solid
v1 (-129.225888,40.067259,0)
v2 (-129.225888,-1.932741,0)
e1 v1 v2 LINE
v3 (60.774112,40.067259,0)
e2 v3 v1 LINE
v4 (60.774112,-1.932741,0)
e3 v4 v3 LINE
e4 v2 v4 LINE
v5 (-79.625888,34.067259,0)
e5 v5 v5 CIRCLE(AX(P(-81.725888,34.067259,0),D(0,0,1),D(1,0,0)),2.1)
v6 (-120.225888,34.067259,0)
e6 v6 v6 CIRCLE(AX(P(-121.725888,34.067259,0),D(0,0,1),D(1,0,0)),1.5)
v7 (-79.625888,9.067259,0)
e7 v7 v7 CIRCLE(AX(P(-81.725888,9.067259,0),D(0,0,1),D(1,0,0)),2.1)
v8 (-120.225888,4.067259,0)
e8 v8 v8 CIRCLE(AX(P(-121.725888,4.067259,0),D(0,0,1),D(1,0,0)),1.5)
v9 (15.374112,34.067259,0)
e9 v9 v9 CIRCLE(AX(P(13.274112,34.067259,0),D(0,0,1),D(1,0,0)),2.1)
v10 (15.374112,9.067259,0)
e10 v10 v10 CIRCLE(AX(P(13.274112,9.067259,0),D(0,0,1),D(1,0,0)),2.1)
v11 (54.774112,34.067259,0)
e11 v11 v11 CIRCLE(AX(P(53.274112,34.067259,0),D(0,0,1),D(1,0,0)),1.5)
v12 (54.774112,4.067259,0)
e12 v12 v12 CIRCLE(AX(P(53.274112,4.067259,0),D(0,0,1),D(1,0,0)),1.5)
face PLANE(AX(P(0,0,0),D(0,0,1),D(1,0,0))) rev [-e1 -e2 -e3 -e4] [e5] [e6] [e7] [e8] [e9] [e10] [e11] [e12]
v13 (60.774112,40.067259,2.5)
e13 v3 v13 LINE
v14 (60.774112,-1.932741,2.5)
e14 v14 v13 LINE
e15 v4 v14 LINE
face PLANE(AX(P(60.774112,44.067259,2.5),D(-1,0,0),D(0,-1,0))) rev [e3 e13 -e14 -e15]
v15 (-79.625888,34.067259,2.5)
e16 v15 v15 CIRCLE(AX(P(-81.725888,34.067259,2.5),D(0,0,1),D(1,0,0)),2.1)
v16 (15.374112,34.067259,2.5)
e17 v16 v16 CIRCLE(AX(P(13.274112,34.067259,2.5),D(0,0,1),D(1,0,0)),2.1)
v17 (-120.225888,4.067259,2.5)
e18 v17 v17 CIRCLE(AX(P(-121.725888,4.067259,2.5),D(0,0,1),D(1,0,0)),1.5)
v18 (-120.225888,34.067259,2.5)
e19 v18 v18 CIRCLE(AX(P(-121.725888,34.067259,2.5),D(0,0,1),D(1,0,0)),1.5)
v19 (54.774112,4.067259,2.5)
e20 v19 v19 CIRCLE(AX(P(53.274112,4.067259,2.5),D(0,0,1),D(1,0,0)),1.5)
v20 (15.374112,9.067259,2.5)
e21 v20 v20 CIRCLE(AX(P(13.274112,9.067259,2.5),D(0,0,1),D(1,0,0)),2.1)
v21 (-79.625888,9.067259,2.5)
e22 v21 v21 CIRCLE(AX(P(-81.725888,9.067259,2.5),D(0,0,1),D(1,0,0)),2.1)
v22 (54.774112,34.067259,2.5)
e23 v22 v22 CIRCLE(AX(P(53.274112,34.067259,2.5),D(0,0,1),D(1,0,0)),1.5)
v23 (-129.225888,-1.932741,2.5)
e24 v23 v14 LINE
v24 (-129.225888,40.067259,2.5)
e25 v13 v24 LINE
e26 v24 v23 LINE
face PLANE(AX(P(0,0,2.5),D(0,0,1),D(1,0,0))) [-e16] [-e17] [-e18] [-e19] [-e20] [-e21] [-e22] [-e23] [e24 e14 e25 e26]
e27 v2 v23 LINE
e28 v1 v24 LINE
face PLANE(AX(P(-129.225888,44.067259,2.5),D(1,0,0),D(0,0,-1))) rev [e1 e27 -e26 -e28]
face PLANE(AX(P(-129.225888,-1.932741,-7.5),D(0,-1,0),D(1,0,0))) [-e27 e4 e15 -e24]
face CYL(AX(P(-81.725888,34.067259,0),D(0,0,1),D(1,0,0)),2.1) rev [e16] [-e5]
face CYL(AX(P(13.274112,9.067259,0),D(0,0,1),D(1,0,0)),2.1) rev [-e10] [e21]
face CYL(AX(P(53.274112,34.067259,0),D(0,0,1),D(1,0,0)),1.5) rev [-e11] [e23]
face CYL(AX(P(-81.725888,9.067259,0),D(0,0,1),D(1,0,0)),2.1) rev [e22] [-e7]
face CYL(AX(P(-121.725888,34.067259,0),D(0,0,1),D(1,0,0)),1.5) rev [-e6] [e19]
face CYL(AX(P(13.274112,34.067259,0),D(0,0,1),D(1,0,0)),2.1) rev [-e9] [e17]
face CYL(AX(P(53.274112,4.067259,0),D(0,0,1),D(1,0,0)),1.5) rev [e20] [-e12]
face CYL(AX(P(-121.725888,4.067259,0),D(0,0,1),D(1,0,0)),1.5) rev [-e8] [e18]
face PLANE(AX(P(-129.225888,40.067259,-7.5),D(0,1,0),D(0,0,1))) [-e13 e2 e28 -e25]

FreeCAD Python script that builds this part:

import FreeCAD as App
import Part
import Sketcher
from FreeCAD import Vector

doc = App.newDocument("Part")
params = doc.addObject("Spreadsheet::Sheet", "Params")
for row, (alias, value) in enumerate([
    ("sketch1_width", "190 mm"),
    ("sketch1_height", "50 mm"),
    ("pad1_length", "2.5 mm"),
    ("sketch2_diameter", "3 mm"),
    ("sketch3_diameter", "4.2 mm"),
    ("sketch4_width", "190 mm"),
    ("sketch4_height", "42 mm"),
    ("pocket3_length", "10 mm"),
], start=1):
    params.set(f"A{row}", alias)
    params.set(f"B{row}", "=" + value)
    params.setAlias(f"B{row}", alias)

body = doc.addObject("PartDesign::Body", "Body")

# Sketch on XY plane
sketch1 = doc.addObject("Sketcher::SketchObject", "Sketch")
body.addObject(sketch1)
sketch1.AttachmentSupport = (doc.XY_Plane, [""])
sketch1.MapMode = "FlatFace"
sketch1.addGeometry(Part.LineSegment(Vector(-129.225888, 44.067259, 0), Vector(-129.225888, -5.932741, 0)), False)
sketch1.addGeometry(Part.LineSegment(Vector(-129.225888, -5.932741, 0), Vector(60.774112, -5.932741, 0)), False)
sketch1.addGeometry(Part.LineSegment(Vector(60.774112, -5.932741, 0), Vector(60.774112, 44.067259, 0)), False)
sketch1.addGeometry(Part.LineSegment(Vector(60.774112, 44.067259, 0), Vector(-129.225888, 44.067259, 0)), False)
sketch1.addConstraint(Sketcher.Constraint("Coincident", 0, 2, 1, 1))
sketch1.addConstraint(Sketcher.Constraint("Coincident", 1, 2, 2, 1))
sketch1.addConstraint(Sketcher.Constraint("Coincident", 2, 2, 3, 1))
sketch1.addConstraint(Sketcher.Constraint("Coincident", 3, 2, 0, 1))
sketch1.addConstraint(Sketcher.Constraint("Vertical", 0))
sketch1.addConstraint(Sketcher.Constraint("Horizontal", 1))
sketch1.addConstraint(Sketcher.Constraint("Vertical", 2))
sketch1.addConstraint(Sketcher.Constraint("Horizontal", 3))
sketch1.addConstraint(Sketcher.Constraint("DistanceX", 1, 1, 1, 2, 190.0))
sketch1.addConstraint(Sketcher.Constraint("DistanceY", 0, 2, 0, 1, 50.0))
sketch1.addConstraint(Sketcher.Constraint("DistanceX", 0, 2, -1, 1, 129.225888))
sketch1.addConstraint(Sketcher.Constraint("DistanceY", 0, 2, -1, 1, 5.932741))
sketch1.setExpression("Constraints[8]", "Params.sketch1_width")
sketch1.setExpression("Constraints[9]", "Params.sketch1_height")
pad1 = doc.addObject("PartDesign::Pad", "Pad")
body.addObject(pad1)
pad1.Profile = sketch1
pad1.setExpression("Length", "Params.pad1_length")

# Sketch on XY plane
sketch2 = doc.addObject("Sketcher::SketchObject", "Sketch001")
body.addObject(sketch2)
sketch2.AttachmentSupport = (doc.XY_Plane, [""])
sketch2.MapMode = "FlatFace"
sketch2.AttachmentOffset = App.Placement(Vector(0, 0, 2.5), App.Rotation())
sketch2.addGeometry(Part.Circle(Vector(-121.725888, 34.067259, 0), Vector(0, 0, 1), 1.5), False)
sketch2.addGeometry(Part.Circle(Vector(-121.725888, 4.067259, 0), Vector(0, 0, 1), 1.5), False)
sketch2.addGeometry(Part.Circle(Vector(53.274112, 34.067259, 0), Vector(0, 0, 1), 1.5), False)
sketch2.addGeometry(Part.Circle(Vector(53.274112, 4.067259, 0), Vector(0, 0, 1), 1.5), False)
sketch2.addConstraint(Sketcher.Constraint("Equal", 0, 1))
sketch2.addConstraint(Sketcher.Constraint("Equal", 1, 2))
sketch2.addConstraint(Sketcher.Constraint("Equal", 2, 3))
sketch2.addConstraint(Sketcher.Constraint("Horizontal", 0, 3, 2, 3))
sketch2.addConstraint(Sketcher.Constraint("Horizontal", 1, 3, 3, 3))
sketch2.addConstraint(Sketcher.Constraint("Vertical", 0, 3, 1, 3))
sketch2.addConstraint(Sketcher.Constraint("Vertical", 2, 3, 3, 3))
sketch2.addConstraint(Sketcher.Constraint("Diameter", 0, 3.0))
sketch2.addConstraint(Sketcher.Constraint("DistanceY", 1, 3, 0, 3, 30.0))
sketch2.addConstraint(Sketcher.Constraint("DistanceX", 0, 3, 2, 3, 175.0))
sketch2.addConstraint(Sketcher.Constraint("DistanceX", 0, 3, -1, 1, 121.725888))
sketch2.addConstraint(Sketcher.Constraint("DistanceY", -1, 1, 0, 3, 34.067259))
sketch2.setExpression("Constraints[7]", "Params.sketch2_diameter")
pocket1 = doc.addObject("PartDesign::Pocket", "Pocket")
body.addObject(pocket1)
pocket1.Profile = sketch2
pocket1.Type = "ThroughAll"

# Sketch on XY plane
sketch3 = doc.addObject("Sketcher::SketchObject", "Sketch002")
body.addObject(sketch3)
sketch3.AttachmentSupport = (doc.XY_Plane, [""])
sketch3.MapMode = "FlatFace"
sketch3.AttachmentOffset = App.Placement(Vector(0, 0, 2.5), App.Rotation())
sketch3.addGeometry(Part.Circle(Vector(-81.725888, 34.067259, 0), Vector(0, 0, 1), 2.1), False)
sketch3.addGeometry(Part.Circle(Vector(13.274112, 34.067259, 0), Vector(0, 0, 1), 2.1), False)
sketch3.addGeometry(Part.Circle(Vector(13.274112, 9.067259, 0), Vector(0, 0, 1), 2.1), False)
sketch3.addGeometry(Part.Circle(Vector(-81.725888, 9.067259, 0), Vector(0, 0, 1), 2.1), False)
sketch3.addConstraint(Sketcher.Constraint("Equal", 0, 1))
sketch3.addConstraint(Sketcher.Constraint("Equal", 1, 2))
sketch3.addConstraint(Sketcher.Constraint("Equal", 2, 3))
sketch3.addConstraint(Sketcher.Constraint("Horizontal", 0, 3, 1, 3))
sketch3.addConstraint(Sketcher.Constraint("Horizontal", 2, 3, 3, 3))
sketch3.addConstraint(Sketcher.Constraint("Vertical", 1, 3, 2, 3))
sketch3.addConstraint(Sketcher.Constraint("Vertical", 0, 3, 3, 3))
sketch3.addConstraint(Sketcher.Constraint("Diameter", 0, 4.2))
sketch3.addConstraint(Sketcher.Constraint("DistanceX", 0, 3, 1, 3, 95.0))
sketch3.addConstraint(Sketcher.Constraint("DistanceY", 2, 3, 1, 3, 25.0))
sketch3.addConstraint(Sketcher.Constraint("DistanceX", 0, 3, -1, 1, 81.725888))
sketch3.addConstraint(Sketcher.Constraint("DistanceY", -1, 1, 0, 3, 34.067259))
sketch3.setExpression("Constraints[7]", "Params.sketch3_diameter")
pocket2 = doc.addObject("PartDesign::Pocket", "Pocket001")
body.addObject(pocket2)
pocket2.Profile = sketch3
pocket2.Type = "ThroughAll"

# Sketch on XY plane
sketch4 = doc.addObject("Sketcher::SketchObject", "Sketch003")
body.addObject(sketch4)
sketch4.AttachmentSupport = (doc.XY_Plane, [""])
sketch4.MapMode = "FlatFace"
sketch4.AttachmentOffset = App.Placement(Vector(0, 0, 2.5), App.Rotation())
sketch4.addGeometry(Part.LineSegment(Vector(-132.726005, 50.201577, 0), Vector(-132.726005, -10.594591, 0)), False)
sketch4.addGeometry(Part.LineSegment(Vector(-132.726005, -10.594591, 0), Vector(67.229043, -10.594591, 0)), False)
sketch4.addGeometry(Part.LineSegment(Vector(67.229043, -10.594591, 0), Vector(67.229043, 50.201577, 0)), False)
sketch4.addGeometry(Part.LineSegment(Vector(67.229043, 50.201577, 0), Vector(-132.726005, 50.201577, 0)), False)
sketch4.addGeometry(Part.LineSegment(Vector(60.774112, -1.932741, 0), Vector(-129.225888, -1.932741, 0)), False)
sketch4.addGeometry(Part.LineSegment(Vector(-129.225888, -1.932741, 0), Vector(-129.225888, 40.067259, 0)), False)
sketch4.addGeometry(Part.LineSegment(Vector(-129.225888, 40.067259, 0), Vector(60.774112, 40.067259, 0)), False)
sketch4.addGeometry(Part.LineSegment(Vector(60.774112, 40.067259, 0), Vector(60.774112, -1.932741, 0)), False)
sketch4.addConstraint(Sketcher.Constraint("Coincident", 0, 2, 1, 1))
sketch4.addConstraint(Sketcher.Constraint("Coincident", 1, 2, 2, 1))
sketch4.addConstraint(Sketcher.Constraint("Coincident", 2, 2, 3, 1))
sketch4.addConstraint(Sketcher.Constraint("Coincident", 3, 2, 0, 1))
sketch4.addConstraint(Sketcher.Constraint("Coincident", 4, 2, 5, 1))
sketch4.addConstraint(Sketcher.Constraint("Coincident", 5, 2, 6, 1))
sketch4.addConstraint(Sketcher.Constraint("Coincident", 6, 2, 7, 1))
sketch4.addConstraint(Sketcher.Constraint("Coincident", 7, 2, 4, 1))
sketch4.addConstraint(Sketcher.Constraint("Vertical", 0))
sketch4.addConstraint(Sketcher.Constraint("Horizontal", 1))
sketch4.addConstraint(Sketcher.Constraint("Vertical", 2))
sketch4.addConstraint(Sketcher.Constraint("Horizontal", 3))
sketch4.addConstraint(Sketcher.Constraint("Horizontal", 4))
sketch4.addConstraint(Sketcher.Constraint("Vertical", 5))
sketch4.addConstraint(Sketcher.Constraint("Horizontal", 6))
sketch4.addConstraint(Sketcher.Constraint("Vertical", 7))
sketch4.addConstraint(Sketcher.Constraint("DistanceX", 4, 2, 4, 1, 190.0))
sketch4.addConstraint(Sketcher.Constraint("DistanceY", 5, 1, 5, 2, 42.0))
sketch4.addConstraint(Sketcher.Constraint("DistanceY", 0, 2, 0, 1, 60.796168))
sketch4.addConstraint(Sketcher.Constraint("DistanceX", 1, 1, 1, 2, 199.955048))
sketch4.addConstraint(Sketcher.Constraint("DistanceY", 0, 2, -1, 1, 10.594591))
sketch4.addConstraint(Sketcher.Constraint("DistanceX", 4, 2, -1, 1, 129.225888))
sketch4.addConstraint(Sketcher.Constraint("DistanceY", 4, 2, -1, 1, 1.932741))
sketch4.addConstraint(Sketcher.Constraint("DistanceX", 4, 2, 1, 2, 196.454931))
sketch4.setExpression("Constraints[16]", "Params.sketch4_width")
sketch4.setExpression("Constraints[17]", "Params.sketch4_height")
pocket3 = doc.addObject("PartDesign::Pocket", "Pocket002")
body.addObject(pocket3)
pocket3.Profile = sketch4
pocket3.setExpression("Length", "Params.pocket3_length")

doc.recompute()
